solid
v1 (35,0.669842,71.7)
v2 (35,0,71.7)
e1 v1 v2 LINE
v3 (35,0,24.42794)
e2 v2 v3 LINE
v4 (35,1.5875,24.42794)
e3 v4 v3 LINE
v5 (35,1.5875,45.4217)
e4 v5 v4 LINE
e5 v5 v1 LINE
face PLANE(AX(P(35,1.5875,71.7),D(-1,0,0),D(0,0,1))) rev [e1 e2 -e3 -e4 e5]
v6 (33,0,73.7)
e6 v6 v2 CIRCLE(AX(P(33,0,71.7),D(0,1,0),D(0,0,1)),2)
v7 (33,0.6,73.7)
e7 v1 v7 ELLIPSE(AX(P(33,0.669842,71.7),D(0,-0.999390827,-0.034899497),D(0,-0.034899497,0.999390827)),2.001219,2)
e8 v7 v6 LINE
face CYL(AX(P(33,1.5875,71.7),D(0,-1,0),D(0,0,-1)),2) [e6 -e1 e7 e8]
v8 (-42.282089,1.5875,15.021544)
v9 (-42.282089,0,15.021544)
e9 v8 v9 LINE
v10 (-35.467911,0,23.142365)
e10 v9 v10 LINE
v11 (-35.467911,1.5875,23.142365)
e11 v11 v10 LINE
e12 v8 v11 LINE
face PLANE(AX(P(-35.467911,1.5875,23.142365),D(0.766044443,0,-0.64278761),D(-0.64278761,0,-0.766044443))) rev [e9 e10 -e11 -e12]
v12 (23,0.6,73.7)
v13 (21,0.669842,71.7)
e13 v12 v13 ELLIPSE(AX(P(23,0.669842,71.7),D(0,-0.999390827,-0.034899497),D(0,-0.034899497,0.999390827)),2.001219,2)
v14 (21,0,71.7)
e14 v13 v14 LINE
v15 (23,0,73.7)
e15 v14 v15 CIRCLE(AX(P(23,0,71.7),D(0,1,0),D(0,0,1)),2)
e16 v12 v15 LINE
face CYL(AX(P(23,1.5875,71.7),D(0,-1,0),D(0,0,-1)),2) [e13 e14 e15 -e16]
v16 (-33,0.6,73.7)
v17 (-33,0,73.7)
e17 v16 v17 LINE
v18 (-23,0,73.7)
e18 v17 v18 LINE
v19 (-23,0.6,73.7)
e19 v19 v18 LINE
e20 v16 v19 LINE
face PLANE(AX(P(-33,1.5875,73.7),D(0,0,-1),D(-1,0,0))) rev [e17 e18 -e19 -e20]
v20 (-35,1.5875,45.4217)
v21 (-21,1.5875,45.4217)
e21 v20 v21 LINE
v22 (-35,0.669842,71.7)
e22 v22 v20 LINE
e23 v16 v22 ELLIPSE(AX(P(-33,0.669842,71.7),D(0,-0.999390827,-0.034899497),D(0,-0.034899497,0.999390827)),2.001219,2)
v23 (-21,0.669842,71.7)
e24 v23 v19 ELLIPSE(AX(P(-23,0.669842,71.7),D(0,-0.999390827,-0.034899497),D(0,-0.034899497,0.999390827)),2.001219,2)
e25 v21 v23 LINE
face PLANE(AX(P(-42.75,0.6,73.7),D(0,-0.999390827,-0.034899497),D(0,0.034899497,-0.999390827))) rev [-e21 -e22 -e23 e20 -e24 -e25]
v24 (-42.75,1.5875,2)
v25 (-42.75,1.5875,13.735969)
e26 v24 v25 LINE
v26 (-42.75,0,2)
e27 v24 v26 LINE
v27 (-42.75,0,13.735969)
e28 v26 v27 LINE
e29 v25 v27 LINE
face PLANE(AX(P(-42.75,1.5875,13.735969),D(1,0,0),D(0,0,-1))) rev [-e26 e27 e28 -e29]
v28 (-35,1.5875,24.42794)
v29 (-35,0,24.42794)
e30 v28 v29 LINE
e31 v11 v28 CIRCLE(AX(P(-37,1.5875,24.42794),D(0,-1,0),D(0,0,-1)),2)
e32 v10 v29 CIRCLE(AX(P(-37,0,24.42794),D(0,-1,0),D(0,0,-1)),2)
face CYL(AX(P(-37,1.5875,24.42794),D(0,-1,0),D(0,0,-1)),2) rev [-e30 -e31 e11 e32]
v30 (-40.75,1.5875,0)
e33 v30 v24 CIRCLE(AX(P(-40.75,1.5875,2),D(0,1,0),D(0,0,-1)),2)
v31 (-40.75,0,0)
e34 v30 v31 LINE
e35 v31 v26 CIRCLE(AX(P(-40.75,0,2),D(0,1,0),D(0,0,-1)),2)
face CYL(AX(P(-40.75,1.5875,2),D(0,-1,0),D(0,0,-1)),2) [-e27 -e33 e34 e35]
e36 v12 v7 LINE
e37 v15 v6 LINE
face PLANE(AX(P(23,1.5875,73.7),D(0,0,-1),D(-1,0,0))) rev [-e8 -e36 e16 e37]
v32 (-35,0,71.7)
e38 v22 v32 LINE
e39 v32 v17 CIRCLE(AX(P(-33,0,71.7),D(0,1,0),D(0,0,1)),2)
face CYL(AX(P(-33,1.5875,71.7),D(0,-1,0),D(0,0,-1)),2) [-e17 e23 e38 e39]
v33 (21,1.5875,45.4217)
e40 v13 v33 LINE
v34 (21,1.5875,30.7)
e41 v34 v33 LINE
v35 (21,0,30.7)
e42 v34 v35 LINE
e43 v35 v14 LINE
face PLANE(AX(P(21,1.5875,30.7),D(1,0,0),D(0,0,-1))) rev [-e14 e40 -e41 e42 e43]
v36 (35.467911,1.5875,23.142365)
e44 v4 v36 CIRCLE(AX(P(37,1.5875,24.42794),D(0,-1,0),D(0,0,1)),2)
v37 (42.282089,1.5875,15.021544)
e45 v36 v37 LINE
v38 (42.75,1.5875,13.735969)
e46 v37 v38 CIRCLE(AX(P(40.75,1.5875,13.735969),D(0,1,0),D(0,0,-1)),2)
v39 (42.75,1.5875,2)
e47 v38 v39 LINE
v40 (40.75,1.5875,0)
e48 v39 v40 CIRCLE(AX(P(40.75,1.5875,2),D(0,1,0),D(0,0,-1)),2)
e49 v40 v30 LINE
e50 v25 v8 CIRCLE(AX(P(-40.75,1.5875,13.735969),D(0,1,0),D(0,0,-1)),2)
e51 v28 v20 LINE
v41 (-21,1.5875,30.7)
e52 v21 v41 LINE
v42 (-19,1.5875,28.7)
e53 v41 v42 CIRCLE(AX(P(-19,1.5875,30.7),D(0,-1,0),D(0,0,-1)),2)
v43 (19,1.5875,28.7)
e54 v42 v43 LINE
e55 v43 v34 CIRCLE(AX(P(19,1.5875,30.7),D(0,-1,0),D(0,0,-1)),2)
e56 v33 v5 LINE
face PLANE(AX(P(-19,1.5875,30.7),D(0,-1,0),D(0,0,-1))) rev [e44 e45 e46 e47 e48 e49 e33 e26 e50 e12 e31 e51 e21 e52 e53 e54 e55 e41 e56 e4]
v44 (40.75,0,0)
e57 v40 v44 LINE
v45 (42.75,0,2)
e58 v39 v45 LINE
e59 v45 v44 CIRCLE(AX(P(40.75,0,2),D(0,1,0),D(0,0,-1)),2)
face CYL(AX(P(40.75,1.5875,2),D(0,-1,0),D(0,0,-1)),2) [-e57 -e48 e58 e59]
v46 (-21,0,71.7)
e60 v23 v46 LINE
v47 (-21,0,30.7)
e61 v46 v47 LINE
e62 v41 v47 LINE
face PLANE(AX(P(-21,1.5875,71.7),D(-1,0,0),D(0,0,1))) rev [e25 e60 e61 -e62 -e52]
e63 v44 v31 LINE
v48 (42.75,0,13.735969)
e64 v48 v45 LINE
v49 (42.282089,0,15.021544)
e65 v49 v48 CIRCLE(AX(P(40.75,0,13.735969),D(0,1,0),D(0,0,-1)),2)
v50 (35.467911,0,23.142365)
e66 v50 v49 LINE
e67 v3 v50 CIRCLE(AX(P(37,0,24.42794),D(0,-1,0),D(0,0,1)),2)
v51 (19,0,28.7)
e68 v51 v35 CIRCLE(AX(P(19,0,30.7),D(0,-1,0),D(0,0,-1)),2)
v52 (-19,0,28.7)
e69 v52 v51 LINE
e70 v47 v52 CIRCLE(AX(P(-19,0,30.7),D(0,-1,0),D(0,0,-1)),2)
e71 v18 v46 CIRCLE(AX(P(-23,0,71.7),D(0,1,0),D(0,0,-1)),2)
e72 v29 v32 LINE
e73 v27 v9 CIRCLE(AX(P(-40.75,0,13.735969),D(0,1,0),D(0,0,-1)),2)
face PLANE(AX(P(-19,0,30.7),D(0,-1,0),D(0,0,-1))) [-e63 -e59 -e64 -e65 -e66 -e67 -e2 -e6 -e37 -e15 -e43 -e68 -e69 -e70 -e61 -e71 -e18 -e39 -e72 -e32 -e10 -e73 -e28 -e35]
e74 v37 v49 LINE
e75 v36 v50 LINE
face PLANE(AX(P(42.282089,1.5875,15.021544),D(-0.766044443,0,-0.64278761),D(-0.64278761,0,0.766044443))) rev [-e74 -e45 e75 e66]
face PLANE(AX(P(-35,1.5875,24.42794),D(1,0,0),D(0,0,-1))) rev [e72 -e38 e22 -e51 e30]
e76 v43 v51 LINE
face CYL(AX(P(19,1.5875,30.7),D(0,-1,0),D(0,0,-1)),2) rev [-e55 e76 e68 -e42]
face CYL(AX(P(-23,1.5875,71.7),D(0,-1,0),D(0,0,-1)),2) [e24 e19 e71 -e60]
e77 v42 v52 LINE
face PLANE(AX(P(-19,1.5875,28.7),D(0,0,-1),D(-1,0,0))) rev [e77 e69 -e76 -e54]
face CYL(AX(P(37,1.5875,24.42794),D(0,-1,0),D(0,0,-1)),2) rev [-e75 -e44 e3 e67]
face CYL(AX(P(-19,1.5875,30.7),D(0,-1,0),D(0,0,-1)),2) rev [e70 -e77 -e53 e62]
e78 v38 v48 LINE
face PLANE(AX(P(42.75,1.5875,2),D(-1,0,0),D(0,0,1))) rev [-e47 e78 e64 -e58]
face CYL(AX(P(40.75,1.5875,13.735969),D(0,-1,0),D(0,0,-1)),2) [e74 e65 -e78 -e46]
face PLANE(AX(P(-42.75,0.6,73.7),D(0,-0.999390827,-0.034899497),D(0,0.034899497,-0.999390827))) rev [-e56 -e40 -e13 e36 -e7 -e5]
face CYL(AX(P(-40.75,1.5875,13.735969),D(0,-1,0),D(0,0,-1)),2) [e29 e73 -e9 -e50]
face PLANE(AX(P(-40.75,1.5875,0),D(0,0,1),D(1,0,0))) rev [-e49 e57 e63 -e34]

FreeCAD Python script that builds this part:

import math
import FreeCAD as App
import Part
import Sketcher

V = App.Vector
Q = App.Units.Quantity


def add_polygon(sketch, points):
    """Adds a closed chain of lines whose ends are joined by coincident constraints."""
    first, n = sketch.GeometryCount, len(points)
    for a, b in zip(points, points[1:] + points[:1]):
        sketch.addGeometry(Part.LineSegment(App.Vector(*a, 0), App.Vector(*b, 0)), False)
    for i in range(n):
        sketch.addConstraint(Sketcher.Constraint("Coincident", first + i, 2, first + (i + 1) % n, 1))

doc = App.newDocument("Part")
params = doc.addObject("Spreadsheet::Sheet", "Params")
for row, (alias, value) in enumerate([
    ("sketch1_radius", "2 mm"),
    ("sketch1_width", "10 mm"),
    ("sketch1_width2", "38 mm"),
    ("sketch1_height", "41 mm"),
    ("sketch1_width3", "81.5 mm"),
    ("pad1_length", "1.5875 mm"),
], start=1):
    params.set(f"A{row}", alias)
    params.set(f"B{row}", "=" + value)
    params.setAlias(f"B{row}", alias)

body = doc.addObject("PartDesign::Body", "Body")

# Sketch on XZ plane
sketch1 = body.newObject("Sketcher::SketchObject", "Sketch")
sketch1.AttachmentSupport = (doc.getObject("XZ_Plane"), [""])
sketch1.MapMode = "FlatFace"
sketch1.addGeometry(Part.LineSegment(V(-35, 24.4, 0), V(-35, 71.7, 0)), False)
sketch1.addGeometry(Part.ArcOfCircle(Part.Circle(V(-33, 71.7, 0), V(0, 0, 1), 2), math.radians(90), math.radians(180)), False)
sketch1.addGeometry(Part.LineSegment(V(-33, 73.7, 0), V(-23, 73.7, 0)), False)
sketch1.addGeometry(Part.ArcOfCircle(Part.Circle(V(-23, 71.7, 0), V(0, 0, 1), 2), math.radians(0), math.radians(90)), False)
sketch1.addGeometry(Part.LineSegment(V(-21, 71.7, 0), V(-21, 30.7, 0)), False)
sketch1.addGeometry(Part.ArcOfCircle(Part.Circle(V(-19, 30.7, 0), V(0, 0, 1), 2), math.radians(-180), math.radians(-90)), False)
sketch1.addGeometry(Part.LineSegment(V(-19, 28.7, 0), V(19, 28.7, 0)), False)
sketch1.addGeometry(Part.ArcOfCircle(Part.Circle(V(19, 30.7, 0), V(0, 0, 1), 2), math.radians(-90), math.radians(0)), False)
sketch1.addGeometry(Part.LineSegment(V(21, 30.7, 0), V(21, 71.7, 0)), False)
sketch1.addGeometry(Part.ArcOfCircle(Part.Circle(V(23, 71.7, 0), V(0, 0, 1), 2), math.radians(90), math.radians(180)), False)
sketch1.addGeometry(Part.LineSegment(V(23, 73.7, 0), V(33, 73.7, 0)), False)
sketch1.addGeometry(Part.ArcOfCircle(Part.Circle(V(33, 71.7, 0), V(0, 0, 1), 2), math.radians(0), math.radians(90)), False)
sketch1.addGeometry(Part.LineSegment(V(35, 71.7, 0), V(35, 24.4, 0)), False)
sketch1.addGeometry(Part.ArcOfCircle(Part.Circle(V(37, 24.4, 0), V(0, 0, 1), 2), math.radians(180), math.radians(220)), False)
sketch1.addGeometry(Part.LineSegment(V(35.5, 23.1, 0), V(42.3, 15, 0)), False)
sketch1.addGeometry(Part.ArcOfCircle(Part.Circle(V(40.8, 13.7, 0), V(0, 0, 1), 2), math.radians(0), math.radians(40)), False)
sketch1.addGeometry(Part.LineSegment(V(42.8, 13.7, 0), V(42.8, 2, 0)), False)
sketch1.addGeometry(Part.ArcOfCircle(Part.Circle(V(40.7, 2, 0), V(0, 0, 1), 2), math.radians(-90), math.radians(0)), False)
sketch1.addGeometry(Part.LineSegment(V(40.8, 0, 0), V(-40.8, 0, 0)), False)
sketch1.addGeometry(Part.ArcOfCircle(Part.Circle(V(-40.7, 2, 0), V(0, 0, 1), 2), math.radians(-180), math.radians(-90)), False)
sketch1.addGeometry(Part.LineSegment(V(-42.8, 2, 0), V(-42.8, 13.7, 0)), False)
sketch1.addGeometry(Part.ArcOfCircle(Part.Circle(V(-40.8, 13.7, 0), V(0, 0, 1), 2), math.radians(140), math.radians(180)), False)
sketch1.addGeometry(Part.LineSegment(V(-42.3, 15, 0), V(-35.5, 23.1, 0)), False)
sketch1.addGeometry(Part.ArcOfCircle(Part.Circle(V(-37, 24.4, 0), V(0, 0, 1), 2), math.radians(-40), math.radians(0)), False)
sketch1.addConstraint(Sketcher.Constraint("Tangent", 0, 2, 1, 2))
sketch1.addConstraint(Sketcher.Constraint("Tangent", 1, 1, 2, 1))
sketch1.addConstraint(Sketcher.Constraint("Tangent", 2, 2, 3, 2))
sketch1.addConstraint(Sketcher.Constraint("Tangent", 3, 1, 4, 1))
sketch1.addConstraint(Sketcher.Constraint("Tangent", 4, 2, 5, 1))
sketch1.addConstraint(Sketcher.Constraint("Tangent", 5, 2, 6, 1))
sketch1.addConstraint(Sketcher.Constraint("Tangent", 6, 2, 7, 1))
sketch1.addConstraint(Sketcher.Constraint("Tangent", 7, 2, 8, 1))
sketch1.addConstraint(Sketcher.Constraint("Tangent", 8, 2, 9, 2))
sketch1.addConstraint(Sketcher.Constraint("Tangent", 9, 1, 10, 1))
sketch1.addConstraint(Sketcher.Constraint("Tangent", 10, 2, 11, 2))
sketch1.addConstraint(Sketcher.Constraint("Tangent", 11, 1, 12, 1))
sketch1.addConstraint(Sketcher.Constraint("Tangent", 12, 2, 13, 1))
sketch1.addConstraint(Sketcher.Constraint("Tangent", 13, 2, 14, 1))
sketch1.addConstraint(Sketcher.Constraint("Tangent", 14, 2, 15, 2))
sketch1.addConstraint(Sketcher.Constraint("Tangent", 15, 1, 16, 1))
sketch1.addConstraint(Sketcher.Constraint("Tangent", 16, 2, 17, 2))
sketch1.addConstraint(Sketcher.Constraint("Tangent", 17, 1, 18, 1))
sketch1.addConstraint(Sketcher.Constraint("Tangent", 18, 2, 19, 2))
sketch1.addConstraint(Sketcher.Constraint("Tangent", 19, 1, 20, 1))
sketch1.addConstraint(Sketcher.Constraint("Tangent", 20, 2, 21, 2))
sketch1.addConstraint(Sketcher.Constraint("Tangent", 21, 1, 22, 1))
sketch1.addConstraint(Sketcher.Constraint("Tangent", 22, 2, 23, 1))
sketch1.addConstraint(Sketcher.Constraint("Tangent", 23, 2, 0, 1))
sketch1.addConstraint(Sketcher.Constraint("Vertical", 0))
sketch1.addConstraint(Sketcher.Constraint("Horizontal", 2))
sketch1.addConstraint(Sketcher.Constraint("Vertical", 4))
sketch1.addConstraint(Sketcher.Constraint("Horizontal", 6))
sketch1.addConstraint(Sketcher.Constraint("Vertical", 8))
sketch1.addConstraint(Sketcher.Constraint("Horizontal", 10))
sketch1.addConstraint(Sketcher.Constraint("Vertical", 12))
sketch1.addConstraint(Sketcher.Constraint("Vertical", 16))
sketch1.addConstraint(Sketcher.Constraint("Horizontal", 18))
sketch1.addConstraint(Sketcher.Constraint("Vertical", 20))
sketch1.addConstraint(Sketcher.Constraint("Equal", 1, 3))
sketch1.addConstraint(Sketcher.Constraint("Equal", 3, 5))
sketch1.addConstraint(Sketcher.Constraint("Equal", 5, 7))
sketch1.addConstraint(Sketcher.Constraint("Equal", 7, 9))
sketch1.addConstraint(Sketcher.Constraint("Equal", 9, 11))
sketch1.addConstraint(Sketcher.Constraint("Equal", 11, 13))
sketch1.addConstraint(Sketcher.Constraint("Equal", 13, 15))
sketch1.addConstraint(Sketcher.Constraint("Equal", 15, 17))
sketch1.addConstraint(Sketcher.Constraint("Equal", 17, 19))
sketch1.addConstraint(Sketcher.Constraint("Equal", 19, 21))
sketch1.addConstraint(Sketcher.Constraint("Equal", 21, 23))
sketch1.addConstraint(Sketcher.Constraint("Symmetric", 17, 1, 18, 2, -1, 1))
sketch1.addConstraint(Sketcher.Constraint("Symmetric", 3, 3, 9, 3, -2))
sketch1.addConstraint(Sketcher.Constraint("Symmetric", 13, 3, 23, 3, -2))
sketch1.addConstraint(Sketcher.Constraint("Horizontal", 15, 3, 21, 3))
sketch1.addConstraint(Sketcher.Constraint("Radius", 1, Q("2 mm")))
sketch1.addConstraint(Sketcher.Constraint("DistanceX", 2, 1, 2, 2, Q("10 mm")))
sketch1.addConstraint(Sketcher.Constraint("DistanceX", 6, 1, 6, 2, Q("38 mm")))
sketch1.addConstraint(Sketcher.Constraint("DistanceY", 4, 2, 4, 1, Q("41 mm")))
sketch1.addConstraint(Sketcher.Constraint("Angle", 14, Q("-50 deg")))
sketch1.addConstraint(Sketcher.Constraint("DistanceX", 18, 2, 18, 1, Q("81.5 mm")))
sketch1.addConstraint(Sketcher.Constraint("DistanceY", -1, 1, 1, 3, Q("71.7 mm")))
sketch1.addConstraint(Sketcher.Constraint("DistanceY", 0, 1, 0, 2, Q("47.27206 mm")))
sketch1.setExpression("Constraints[49]", "Params.sketch1_radius")
sketch1.setExpression("Constraints[50]", "Params.sketch1_width")
sketch1.setExpression("Constraints[51]", "Params.sketch1_width2")
sketch1.setExpression("Constraints[52]", "Params.sketch1_height")
sketch1.setExpression("Constraints[54]", "Params.sketch1_width3")
pad1 = body.newObject("PartDesign::Pad", "Pad")
pad1.Profile = sketch1
pad1.setExpression("Length", "Params.pad1_length")
pad1.Reversed = True

# Sketch on YZ plane
sketch2 = body.newObject("Sketcher::SketchObject", "Sketch001")
sketch2.AttachmentSupport = (doc.getObject("YZ_Plane"), [""])
sketch2.MapMode = "FlatFace"
sketch2.AttachmentOffset = App.Placement(V(0, 0, 37), App.Rotation())
add_polygon(sketch2, [(1.6, 45.4), (1.6, 73.7), (0.6, 73.7)])  # lines 0-2
sketch2.addConstraint(Sketcher.Constraint("Vertical", 0))
sketch2.addConstraint(Sketcher.Constraint("Horizontal", 1))
sketch2.addConstraint(Sketcher.Constraint("Angle", 2, Q("-88 deg")))
sketch2.addConstraint(Sketcher.Constraint("DistanceY", -1, 1, 0, 2, Q("73.7 mm")))
sketch2.addConstraint(Sketcher.Constraint("DistanceX", -1, 1, 1, 2, Q("0.6 mm")))
sketch2.addConstraint(Sketcher.Constraint("DistanceX", 1, 2, 1, 1, Q("0.9875 mm")))
pocket1 = body.newObject("PartDesign::Pocket", "Pocket")
pocket1.Profile = sketch2
pocket1.Type = "ThroughAll"

doc.recompute()
